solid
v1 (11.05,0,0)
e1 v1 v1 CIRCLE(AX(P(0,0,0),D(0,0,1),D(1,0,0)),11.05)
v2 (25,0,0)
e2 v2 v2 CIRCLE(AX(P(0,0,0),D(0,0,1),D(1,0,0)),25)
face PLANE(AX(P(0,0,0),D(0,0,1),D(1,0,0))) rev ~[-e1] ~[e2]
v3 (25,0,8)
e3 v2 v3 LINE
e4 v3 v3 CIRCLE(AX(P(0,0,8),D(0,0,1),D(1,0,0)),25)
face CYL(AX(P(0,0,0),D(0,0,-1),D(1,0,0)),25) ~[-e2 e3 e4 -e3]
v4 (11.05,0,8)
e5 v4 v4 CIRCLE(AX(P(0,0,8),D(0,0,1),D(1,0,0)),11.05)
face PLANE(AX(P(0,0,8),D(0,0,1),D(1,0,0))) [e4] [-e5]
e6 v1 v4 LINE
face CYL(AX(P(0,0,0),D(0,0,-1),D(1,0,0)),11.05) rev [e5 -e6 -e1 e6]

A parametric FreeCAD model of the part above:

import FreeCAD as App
import Part
import Sketcher

doc = App.newDocument("Part")
body = doc.addObject("PartDesign::Body", "Body")

# Sketch on XY plane
sketch1 = body.newObject("Sketcher::SketchObject", "Sketch")
sketch1.AttachmentSupport = (doc.getObject("XY_Plane"), [""])
sketch1.MapMode = "FlatFace"
sketch1.addGeometry(Part.Circle(App.Vector(0, 0, 0), App.Vector(0, 0, 1), 25), False)
sketch1.addGeometry(Part.Circle(App.Vector(0, 0, 0), App.Vector(0, 0, 1), 11), False)
sketch1.addConstraint(Sketcher.Constraint("Coincident", 0, 3, -1, 1))
sketch1.addConstraint(Sketcher.Constraint("Coincident", 1, 3, -1, 1))
sketch1.addConstraint(Sketcher.Constraint("Diameter", 0, 50.0))
sketch1.addConstraint(Sketcher.Constraint("Diameter", 1, 22.1))
pad1 = body.newObject("PartDesign::Pad", "Pad")
pad1.Profile = sketch1
pad1.Length = 8

doc.recompute()
